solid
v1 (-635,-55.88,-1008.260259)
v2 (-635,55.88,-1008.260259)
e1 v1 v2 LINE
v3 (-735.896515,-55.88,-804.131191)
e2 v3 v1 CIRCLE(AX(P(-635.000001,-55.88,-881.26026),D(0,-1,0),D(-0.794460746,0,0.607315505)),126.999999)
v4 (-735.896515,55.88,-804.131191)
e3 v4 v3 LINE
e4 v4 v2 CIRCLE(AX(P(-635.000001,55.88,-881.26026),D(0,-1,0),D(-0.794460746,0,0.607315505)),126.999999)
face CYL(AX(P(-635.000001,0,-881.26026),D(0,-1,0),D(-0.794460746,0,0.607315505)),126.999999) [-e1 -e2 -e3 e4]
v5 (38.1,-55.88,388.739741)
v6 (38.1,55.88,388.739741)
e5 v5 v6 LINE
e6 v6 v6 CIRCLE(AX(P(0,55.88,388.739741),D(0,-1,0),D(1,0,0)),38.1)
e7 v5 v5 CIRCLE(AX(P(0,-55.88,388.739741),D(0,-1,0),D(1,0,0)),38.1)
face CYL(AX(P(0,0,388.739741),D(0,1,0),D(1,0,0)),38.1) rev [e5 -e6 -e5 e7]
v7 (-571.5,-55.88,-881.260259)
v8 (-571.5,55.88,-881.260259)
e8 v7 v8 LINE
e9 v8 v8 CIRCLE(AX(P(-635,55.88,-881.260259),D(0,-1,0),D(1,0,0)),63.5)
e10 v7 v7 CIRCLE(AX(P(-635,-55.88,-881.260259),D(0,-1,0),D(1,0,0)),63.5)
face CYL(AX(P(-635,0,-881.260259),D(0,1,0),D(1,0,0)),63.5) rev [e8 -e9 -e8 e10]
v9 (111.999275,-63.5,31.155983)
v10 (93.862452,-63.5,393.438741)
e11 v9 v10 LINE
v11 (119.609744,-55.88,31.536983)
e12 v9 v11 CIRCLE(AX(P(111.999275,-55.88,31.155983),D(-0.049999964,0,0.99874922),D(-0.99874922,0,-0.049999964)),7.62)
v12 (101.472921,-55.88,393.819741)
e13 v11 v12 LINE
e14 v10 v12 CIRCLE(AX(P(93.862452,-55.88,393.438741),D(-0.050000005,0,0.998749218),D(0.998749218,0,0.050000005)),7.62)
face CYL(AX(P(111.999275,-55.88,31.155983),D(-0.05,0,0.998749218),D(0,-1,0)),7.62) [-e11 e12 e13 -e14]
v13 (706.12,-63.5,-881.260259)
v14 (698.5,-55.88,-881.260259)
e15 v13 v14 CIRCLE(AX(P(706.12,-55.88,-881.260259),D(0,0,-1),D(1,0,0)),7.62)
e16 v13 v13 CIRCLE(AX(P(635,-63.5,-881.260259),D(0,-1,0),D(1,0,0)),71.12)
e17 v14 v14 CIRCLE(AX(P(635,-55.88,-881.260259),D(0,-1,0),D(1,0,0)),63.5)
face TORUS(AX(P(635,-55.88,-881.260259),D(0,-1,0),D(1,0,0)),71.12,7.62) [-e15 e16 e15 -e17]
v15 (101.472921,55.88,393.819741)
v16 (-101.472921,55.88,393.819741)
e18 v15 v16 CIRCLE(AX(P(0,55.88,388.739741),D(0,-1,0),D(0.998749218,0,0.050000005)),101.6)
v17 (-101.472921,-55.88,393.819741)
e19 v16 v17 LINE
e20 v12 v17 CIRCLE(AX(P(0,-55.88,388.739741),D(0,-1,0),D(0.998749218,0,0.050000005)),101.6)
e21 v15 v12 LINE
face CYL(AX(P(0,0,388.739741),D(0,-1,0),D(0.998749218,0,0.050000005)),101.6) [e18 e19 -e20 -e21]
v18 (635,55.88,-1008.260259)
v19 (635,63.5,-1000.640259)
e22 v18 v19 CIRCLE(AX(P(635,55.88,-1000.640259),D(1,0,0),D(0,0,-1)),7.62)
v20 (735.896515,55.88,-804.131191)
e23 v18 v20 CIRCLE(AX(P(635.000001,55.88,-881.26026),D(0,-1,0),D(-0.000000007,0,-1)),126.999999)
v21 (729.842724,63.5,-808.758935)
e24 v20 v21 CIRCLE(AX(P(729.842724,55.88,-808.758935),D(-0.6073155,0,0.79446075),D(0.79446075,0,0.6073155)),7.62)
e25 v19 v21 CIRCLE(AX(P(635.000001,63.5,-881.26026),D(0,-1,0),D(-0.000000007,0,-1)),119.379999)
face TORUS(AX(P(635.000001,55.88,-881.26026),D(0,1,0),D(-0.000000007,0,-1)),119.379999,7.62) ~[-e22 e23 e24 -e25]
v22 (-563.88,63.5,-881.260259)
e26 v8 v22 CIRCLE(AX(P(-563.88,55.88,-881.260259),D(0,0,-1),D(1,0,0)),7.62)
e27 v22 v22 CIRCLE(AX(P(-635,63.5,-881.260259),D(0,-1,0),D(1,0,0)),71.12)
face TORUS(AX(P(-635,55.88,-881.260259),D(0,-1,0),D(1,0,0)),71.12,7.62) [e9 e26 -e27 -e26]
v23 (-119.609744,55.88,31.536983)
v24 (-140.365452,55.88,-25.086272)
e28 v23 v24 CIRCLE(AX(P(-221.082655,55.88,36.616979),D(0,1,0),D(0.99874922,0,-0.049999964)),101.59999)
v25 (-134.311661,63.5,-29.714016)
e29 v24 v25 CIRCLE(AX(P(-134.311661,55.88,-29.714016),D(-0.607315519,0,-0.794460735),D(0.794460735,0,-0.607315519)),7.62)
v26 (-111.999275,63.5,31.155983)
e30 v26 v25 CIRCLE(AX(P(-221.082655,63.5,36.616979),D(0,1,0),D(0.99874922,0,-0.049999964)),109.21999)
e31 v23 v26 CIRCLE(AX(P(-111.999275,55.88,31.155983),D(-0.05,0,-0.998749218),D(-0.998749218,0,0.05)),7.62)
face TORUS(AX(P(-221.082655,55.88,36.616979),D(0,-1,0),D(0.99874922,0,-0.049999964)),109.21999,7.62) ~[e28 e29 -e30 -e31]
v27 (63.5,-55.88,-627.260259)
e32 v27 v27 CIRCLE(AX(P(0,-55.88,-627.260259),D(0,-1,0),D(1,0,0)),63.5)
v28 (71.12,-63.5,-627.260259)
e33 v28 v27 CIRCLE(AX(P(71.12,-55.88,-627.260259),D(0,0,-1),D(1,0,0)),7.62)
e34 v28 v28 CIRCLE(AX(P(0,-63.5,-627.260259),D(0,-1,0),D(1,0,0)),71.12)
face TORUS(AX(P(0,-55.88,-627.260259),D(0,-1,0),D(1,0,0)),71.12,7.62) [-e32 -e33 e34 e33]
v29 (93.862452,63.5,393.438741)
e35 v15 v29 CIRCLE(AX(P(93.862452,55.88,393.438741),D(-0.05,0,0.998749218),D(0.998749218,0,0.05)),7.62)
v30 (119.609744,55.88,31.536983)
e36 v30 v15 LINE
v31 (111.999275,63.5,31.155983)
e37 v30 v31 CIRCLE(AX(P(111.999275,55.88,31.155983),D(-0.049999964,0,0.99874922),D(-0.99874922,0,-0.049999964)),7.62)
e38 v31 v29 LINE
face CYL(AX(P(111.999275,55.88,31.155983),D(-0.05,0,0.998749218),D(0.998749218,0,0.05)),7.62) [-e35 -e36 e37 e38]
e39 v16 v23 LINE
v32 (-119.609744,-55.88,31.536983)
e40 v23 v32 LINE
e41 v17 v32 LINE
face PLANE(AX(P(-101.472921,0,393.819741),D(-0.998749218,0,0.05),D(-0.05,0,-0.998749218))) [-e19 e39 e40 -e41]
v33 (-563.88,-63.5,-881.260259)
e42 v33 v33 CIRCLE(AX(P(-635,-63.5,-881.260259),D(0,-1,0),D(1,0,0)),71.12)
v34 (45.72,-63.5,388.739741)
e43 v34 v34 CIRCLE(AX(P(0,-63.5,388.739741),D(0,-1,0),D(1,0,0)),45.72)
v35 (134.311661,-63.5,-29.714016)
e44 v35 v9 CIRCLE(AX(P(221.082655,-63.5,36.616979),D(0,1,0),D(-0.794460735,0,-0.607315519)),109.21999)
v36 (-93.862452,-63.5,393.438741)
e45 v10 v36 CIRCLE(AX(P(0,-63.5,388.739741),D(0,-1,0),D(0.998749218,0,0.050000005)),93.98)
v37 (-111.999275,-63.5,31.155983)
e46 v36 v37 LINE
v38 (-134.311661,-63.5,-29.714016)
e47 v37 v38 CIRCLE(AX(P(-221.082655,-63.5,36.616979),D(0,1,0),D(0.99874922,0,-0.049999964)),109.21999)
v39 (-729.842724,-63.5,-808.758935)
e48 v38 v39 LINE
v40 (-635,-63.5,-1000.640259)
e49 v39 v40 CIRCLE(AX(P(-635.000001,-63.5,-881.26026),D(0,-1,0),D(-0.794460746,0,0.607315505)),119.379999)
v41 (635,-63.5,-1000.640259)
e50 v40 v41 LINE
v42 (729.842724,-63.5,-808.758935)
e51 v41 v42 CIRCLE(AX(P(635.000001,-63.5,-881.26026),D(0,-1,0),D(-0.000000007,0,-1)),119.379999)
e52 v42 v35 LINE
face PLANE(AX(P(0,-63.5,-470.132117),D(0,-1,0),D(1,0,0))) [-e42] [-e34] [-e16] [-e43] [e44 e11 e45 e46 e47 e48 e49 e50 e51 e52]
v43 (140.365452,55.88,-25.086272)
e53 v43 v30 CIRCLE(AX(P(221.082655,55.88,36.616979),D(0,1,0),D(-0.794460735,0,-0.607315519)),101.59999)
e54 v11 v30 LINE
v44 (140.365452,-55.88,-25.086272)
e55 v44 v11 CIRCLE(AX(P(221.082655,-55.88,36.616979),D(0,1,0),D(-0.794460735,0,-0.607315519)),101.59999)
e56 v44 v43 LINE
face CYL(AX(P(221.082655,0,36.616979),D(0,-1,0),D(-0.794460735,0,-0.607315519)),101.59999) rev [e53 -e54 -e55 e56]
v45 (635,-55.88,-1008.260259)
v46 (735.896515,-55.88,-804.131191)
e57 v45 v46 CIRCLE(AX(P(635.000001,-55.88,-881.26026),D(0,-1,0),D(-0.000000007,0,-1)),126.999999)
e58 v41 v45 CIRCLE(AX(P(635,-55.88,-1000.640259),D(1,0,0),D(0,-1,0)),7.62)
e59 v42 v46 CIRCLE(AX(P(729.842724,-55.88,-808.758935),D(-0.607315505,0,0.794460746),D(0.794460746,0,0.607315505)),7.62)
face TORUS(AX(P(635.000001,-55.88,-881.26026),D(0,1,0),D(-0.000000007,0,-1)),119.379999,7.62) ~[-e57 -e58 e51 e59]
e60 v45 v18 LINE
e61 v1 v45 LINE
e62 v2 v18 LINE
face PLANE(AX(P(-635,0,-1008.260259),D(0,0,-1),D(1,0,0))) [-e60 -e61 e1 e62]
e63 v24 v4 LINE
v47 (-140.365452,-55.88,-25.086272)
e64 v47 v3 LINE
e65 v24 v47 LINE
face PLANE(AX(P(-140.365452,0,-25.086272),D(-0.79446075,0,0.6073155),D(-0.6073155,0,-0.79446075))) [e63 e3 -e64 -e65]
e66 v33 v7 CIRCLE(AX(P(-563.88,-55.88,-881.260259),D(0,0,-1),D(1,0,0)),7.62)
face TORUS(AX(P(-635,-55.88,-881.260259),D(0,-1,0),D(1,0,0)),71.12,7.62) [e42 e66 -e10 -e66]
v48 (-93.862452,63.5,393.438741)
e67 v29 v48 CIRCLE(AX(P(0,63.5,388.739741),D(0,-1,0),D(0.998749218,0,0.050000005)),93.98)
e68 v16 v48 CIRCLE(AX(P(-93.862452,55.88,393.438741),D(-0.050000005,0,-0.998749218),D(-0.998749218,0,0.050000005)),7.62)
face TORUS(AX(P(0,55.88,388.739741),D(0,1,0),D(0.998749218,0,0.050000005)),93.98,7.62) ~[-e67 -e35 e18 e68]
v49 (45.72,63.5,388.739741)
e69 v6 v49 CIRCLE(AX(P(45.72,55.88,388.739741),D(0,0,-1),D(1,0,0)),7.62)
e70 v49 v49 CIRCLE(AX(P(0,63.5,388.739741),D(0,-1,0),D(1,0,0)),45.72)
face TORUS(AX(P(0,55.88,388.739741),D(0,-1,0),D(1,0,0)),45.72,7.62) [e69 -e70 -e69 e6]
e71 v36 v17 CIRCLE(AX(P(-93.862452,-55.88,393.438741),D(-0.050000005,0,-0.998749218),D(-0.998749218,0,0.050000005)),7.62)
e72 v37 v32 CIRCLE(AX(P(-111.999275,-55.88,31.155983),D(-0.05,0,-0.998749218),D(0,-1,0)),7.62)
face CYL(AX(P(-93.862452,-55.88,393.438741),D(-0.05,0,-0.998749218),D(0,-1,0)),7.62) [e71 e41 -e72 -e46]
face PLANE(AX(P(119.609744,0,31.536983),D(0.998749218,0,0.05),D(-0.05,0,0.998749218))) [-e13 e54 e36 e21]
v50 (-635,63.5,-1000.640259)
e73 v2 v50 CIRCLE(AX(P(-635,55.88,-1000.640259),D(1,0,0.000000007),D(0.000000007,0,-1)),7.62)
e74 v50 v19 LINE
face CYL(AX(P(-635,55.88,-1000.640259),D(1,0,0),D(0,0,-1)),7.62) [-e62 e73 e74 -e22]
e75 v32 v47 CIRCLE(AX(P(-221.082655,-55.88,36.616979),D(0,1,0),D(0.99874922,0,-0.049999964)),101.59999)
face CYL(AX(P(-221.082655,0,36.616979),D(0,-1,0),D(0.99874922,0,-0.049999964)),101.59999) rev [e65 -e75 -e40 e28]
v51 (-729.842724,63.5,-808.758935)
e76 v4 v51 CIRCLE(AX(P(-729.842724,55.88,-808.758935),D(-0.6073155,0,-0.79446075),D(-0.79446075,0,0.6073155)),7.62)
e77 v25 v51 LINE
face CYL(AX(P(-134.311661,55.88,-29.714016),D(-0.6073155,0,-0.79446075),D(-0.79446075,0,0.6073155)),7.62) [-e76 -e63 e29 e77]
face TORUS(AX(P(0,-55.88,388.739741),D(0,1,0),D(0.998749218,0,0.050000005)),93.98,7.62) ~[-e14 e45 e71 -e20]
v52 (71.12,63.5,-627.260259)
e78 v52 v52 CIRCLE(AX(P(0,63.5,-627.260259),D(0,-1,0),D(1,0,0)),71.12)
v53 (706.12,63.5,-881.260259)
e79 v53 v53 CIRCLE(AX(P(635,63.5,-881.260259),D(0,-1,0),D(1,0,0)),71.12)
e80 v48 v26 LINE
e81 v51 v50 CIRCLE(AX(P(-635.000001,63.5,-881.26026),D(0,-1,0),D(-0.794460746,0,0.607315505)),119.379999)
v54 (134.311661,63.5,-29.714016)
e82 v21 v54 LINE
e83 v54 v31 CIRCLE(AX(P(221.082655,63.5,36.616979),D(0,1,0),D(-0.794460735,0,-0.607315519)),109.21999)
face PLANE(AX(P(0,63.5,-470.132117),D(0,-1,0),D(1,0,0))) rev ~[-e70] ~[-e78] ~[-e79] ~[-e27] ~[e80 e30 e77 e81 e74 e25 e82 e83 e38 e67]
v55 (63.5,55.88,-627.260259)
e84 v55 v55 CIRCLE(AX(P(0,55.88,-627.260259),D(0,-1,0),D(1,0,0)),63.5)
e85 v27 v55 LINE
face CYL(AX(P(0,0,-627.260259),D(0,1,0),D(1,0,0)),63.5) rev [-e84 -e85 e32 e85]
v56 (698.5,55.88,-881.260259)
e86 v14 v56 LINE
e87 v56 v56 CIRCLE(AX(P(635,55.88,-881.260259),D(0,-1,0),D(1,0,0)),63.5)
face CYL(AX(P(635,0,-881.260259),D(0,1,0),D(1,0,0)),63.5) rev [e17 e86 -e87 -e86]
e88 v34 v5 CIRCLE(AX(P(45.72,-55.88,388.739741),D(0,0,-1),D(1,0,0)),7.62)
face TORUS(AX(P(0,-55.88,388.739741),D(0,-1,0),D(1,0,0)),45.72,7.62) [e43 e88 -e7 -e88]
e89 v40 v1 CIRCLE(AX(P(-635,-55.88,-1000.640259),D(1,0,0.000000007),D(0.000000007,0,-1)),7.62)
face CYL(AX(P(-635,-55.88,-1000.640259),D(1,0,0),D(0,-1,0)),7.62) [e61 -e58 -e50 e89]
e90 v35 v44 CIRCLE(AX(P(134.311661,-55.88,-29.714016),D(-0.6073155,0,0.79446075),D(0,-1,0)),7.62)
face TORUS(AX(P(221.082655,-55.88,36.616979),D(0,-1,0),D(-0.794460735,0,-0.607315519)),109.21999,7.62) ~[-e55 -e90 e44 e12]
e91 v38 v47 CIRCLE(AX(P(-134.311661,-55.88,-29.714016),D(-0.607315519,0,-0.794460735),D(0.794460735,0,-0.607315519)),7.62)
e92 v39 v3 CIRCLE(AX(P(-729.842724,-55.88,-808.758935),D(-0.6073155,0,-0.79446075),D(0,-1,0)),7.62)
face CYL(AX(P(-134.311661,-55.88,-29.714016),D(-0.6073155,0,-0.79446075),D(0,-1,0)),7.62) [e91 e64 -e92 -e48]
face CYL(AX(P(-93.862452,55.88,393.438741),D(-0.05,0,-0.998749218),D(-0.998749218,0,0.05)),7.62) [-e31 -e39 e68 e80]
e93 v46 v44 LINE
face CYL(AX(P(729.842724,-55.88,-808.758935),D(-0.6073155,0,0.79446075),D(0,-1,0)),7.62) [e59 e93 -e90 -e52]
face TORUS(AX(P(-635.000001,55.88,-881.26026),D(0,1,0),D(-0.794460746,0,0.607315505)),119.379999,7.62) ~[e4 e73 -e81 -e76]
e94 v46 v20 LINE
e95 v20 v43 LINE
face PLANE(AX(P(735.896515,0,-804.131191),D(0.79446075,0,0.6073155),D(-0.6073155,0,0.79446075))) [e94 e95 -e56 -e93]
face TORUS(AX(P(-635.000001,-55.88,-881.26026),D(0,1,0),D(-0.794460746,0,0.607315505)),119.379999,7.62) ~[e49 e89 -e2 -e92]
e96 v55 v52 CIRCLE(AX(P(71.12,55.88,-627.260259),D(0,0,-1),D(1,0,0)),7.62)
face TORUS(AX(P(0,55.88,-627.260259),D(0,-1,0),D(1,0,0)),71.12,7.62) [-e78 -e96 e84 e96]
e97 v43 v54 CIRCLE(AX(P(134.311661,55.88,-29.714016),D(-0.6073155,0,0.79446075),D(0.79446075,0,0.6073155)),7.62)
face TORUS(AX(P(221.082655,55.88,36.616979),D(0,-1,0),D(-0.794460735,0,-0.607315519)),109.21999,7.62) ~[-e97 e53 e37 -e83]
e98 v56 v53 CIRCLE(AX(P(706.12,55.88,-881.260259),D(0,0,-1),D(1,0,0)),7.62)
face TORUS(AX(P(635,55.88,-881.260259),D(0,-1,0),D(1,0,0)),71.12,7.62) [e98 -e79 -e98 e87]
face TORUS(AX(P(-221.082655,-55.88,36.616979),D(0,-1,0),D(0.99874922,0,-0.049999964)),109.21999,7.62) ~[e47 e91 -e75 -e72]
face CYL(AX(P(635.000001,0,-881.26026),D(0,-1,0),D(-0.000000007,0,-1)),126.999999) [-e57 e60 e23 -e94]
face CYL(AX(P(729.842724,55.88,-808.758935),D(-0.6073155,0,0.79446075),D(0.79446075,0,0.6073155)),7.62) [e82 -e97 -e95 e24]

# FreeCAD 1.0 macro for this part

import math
import FreeCAD as App
import Part
import Sketcher
Q = App.Units.Quantity


def edges_at(feature, points):
    """Names of the edges that pass closest to the given points."""
    edges = feature.Shape.Edges
    near = lambda p: min(range(len(edges)), key=lambda i: edges[i].distToShape(Part.Vertex(*p))[0])
    return sorted({f"Edge{near(p) + 1}" for p in points})

doc = App.newDocument("Part")
body = doc.addObject("PartDesign::Body", "Body")

# Sketch on XZ plane
sketch1 = body.newObject("Sketcher::SketchObject", "Sketch")
sketch1.AttachmentSupport = (doc.getObject("XZ_Plane"), [""])
sketch1.MapMode = "FlatFace"
sketch1.addGeometry(Part.LineSegment(App.Vector(119.609744, 31.536983, 0), App.Vector(101.472921, 393.819741, 0)), False)
sketch1.addGeometry(Part.ArcOfCircle(Part.Circle(App.Vector(0, 388.739741, 0), App.Vector(0, 0, 1), 101.6), math.radians(2.865984), math.radians(177.134016)), False)
sketch1.addGeometry(Part.LineSegment(App.Vector(-101.472921, 393.819741, 0), App.Vector(-119.609744, 31.536983, 0)), False)
sketch1.addGeometry(Part.ArcOfCircle(Part.Circle(App.Vector(-221.082655, 36.616979, 0), App.Vector(0, 0, 1), 101.59999), math.radians(-37.39565), math.radians(-2.865982)), False)
sketch1.addGeometry(Part.LineSegment(App.Vector(-140.365452, -25.086272, 0), App.Vector(-735.896515, -804.131191, 0)), False)
sketch1.addGeometry(Part.ArcOfCircle(Part.Circle(App.Vector(-635.000001, -881.26026, 0), App.Vector(0, 0, 1), 126.999999), math.radians(142.604351), math.radians(270)), False)
sketch1.addGeometry(Part.LineSegment(App.Vector(-635, -1008.260259, 0), App.Vector(635, -1008.260259, 0)), False)
sketch1.addGeometry(Part.ArcOfCircle(Part.Circle(App.Vector(635.000001, -881.26026, 0), App.Vector(0, 0, 1), 126.999999), math.radians(-90), math.radians(37.395649)), False)
sketch1.addGeometry(Part.LineSegment(App.Vector(735.896515, -804.131191, 0), App.Vector(140.365452, -25.086272, 0)), False)
sketch1.addGeometry(Part.ArcOfCircle(Part.Circle(App.Vector(221.082655, 36.616979, 0), App.Vector(0, 0, 1), 101.59999), math.radians(-177.134018), math.radians(-142.60435)), False)
sketch1.addGeometry(Part.Circle(App.Vector(-635, -881.260259, 0), App.Vector(0, 0, 1), 63.5), False)
sketch1.addGeometry(Part.Circle(App.Vector(0, -627.260259, 0), App.Vector(0, 0, 1), 63.5), False)
sketch1.addGeometry(Part.Circle(App.Vector(635, -881.260259, 0), App.Vector(0, 0, 1), 63.5), False)
sketch1.addGeometry(Part.Circle(App.Vector(0, 388.739741, 0), App.Vector(0, 0, 1), 38.1), False)
sketch1.addConstraint(Sketcher.Constraint("Coincident", 0, 2, 1, 1))
sketch1.addConstraint(Sketcher.Constraint("Coincident", 1, 2, 2, 1))
sketch1.addConstraint(Sketcher.Constraint("Coincident", 2, 2, 3, 2))
sketch1.addConstraint(Sketcher.Constraint("Coincident", 3, 1, 4, 1))
sketch1.addConstraint(Sketcher.Constraint("Coincident", 4, 2, 5, 1))
sketch1.addConstraint(Sketcher.Constraint("Coincident", 5, 2, 6, 1))
sketch1.addConstraint(Sketcher.Constraint("Coincident", 6, 2, 7, 1))
sketch1.addConstraint(Sketcher.Constraint("Coincident", 7, 2, 8, 1))
sketch1.addConstraint(Sketcher.Constraint("Coincident", 8, 2, 9, 2))
sketch1.addConstraint(Sketcher.Constraint("Coincident", 9, 1, 0, 1))
sketch1.addConstraint(Sketcher.Constraint("Horizontal", 6))
sketch1.addConstraint(Sketcher.Constraint("Coincident", 10, 3, 5, 3))
sketch1.addConstraint(Sketcher.Constraint("Coincident", 12, 3, 7, 3))
sketch1.addConstraint(Sketcher.Constraint("Coincident", 13, 3, 1, 3))
sketch1.addConstraint(Sketcher.Constraint("PointOnObject", 1, 3, -2))
sketch1.addConstraint(Sketcher.Constraint("PointOnObject", 11, 3, -2))
sketch1.addConstraint(Sketcher.Constraint("Diameter", 10, Q("5 in")))
sketch1.addConstraint(Sketcher.Constraint("Diameter", 11, Q("5 in")))
sketch1.addConstraint(Sketcher.Constraint("Diameter", 12, Q("5 in")))
sketch1.addConstraint(Sketcher.Constraint("Diameter", 13, Q("3 in")))
sketch1.addConstraint(Sketcher.Constraint("Radius", 1, Q("4 in")))
sketch1.addConstraint(Sketcher.Constraint("Radius", 5, Q("5 in")))
sketch1.addConstraint(Sketcher.Constraint("Radius", 7, Q("5 in")))
sketch1.addConstraint(Sketcher.Constraint("DistanceX", 6, 1, 6, 2, Q("50 in")))
sketch1.addConstraint(Sketcher.Constraint("DistanceX", 5, 3, -1, 1, Q("25 in")))
sketch1.addConstraint(Sketcher.Constraint("DistanceX", -1, 1, 7, 3, Q("25 in")))
sketch1.addConstraint(Sketcher.Constraint("DistanceX", 5, 2, -1, 1, Q("25 in")))
sketch1.addConstraint(Sketcher.Constraint("DistanceY", 5, 3, 1, 3, Q("50 in")))
sketch1.addConstraint(Sketcher.Constraint("DistanceY", 10, 3, 11, 3, Q("10 in")))
sketch1.addConstraint(Sketcher.Constraint("DistanceY", 13, 3, 0, 2, Q("0.2 in")))
sketch1.addConstraint(Sketcher.Constraint("DistanceY", 13, 3, 1, 2, Q("0.2 in")))
sketch1.addConstraint(Sketcher.Constraint("DistanceY", 2, 2, 3, 3, Q("0.1999998 in")))
sketch1.addConstraint(Sketcher.Constraint("DistanceY", 2, 2, 9, 3, Q("0.1999998 in")))
sketch1.addConstraint(Sketcher.Constraint("DistanceY", 9, 1, 9, 3, Q("0.1999998 in")))
sketch1.addConstraint(Sketcher.Constraint("Radius", 3, 101.59999))
sketch1.addConstraint(Sketcher.Constraint("Radius", 9, 101.59999))
sketch1.addConstraint(Sketcher.Constraint("DistanceX", 2, 2, 9, 3, 340.692399))
sketch1.addConstraint(Sketcher.Constraint("DistanceY", -1, 1, 1, 3, 388.739741))
sketch1.addConstraint(Sketcher.Constraint("DistanceY", -1, 1, 3, 3, 36.616979))
sketch1.addConstraint(Sketcher.Constraint("DistanceX", 3, 1, -1, 1, 140.365452))
sketch1.addConstraint(Sketcher.Constraint("DistanceY", 4, 2, -1, 1, 804.131191))
sketch1.addConstraint(Sketcher.Constraint("DistanceY", 7, 2, -1, 1, 804.131191))
sketch1.addConstraint(Sketcher.Constraint("DistanceX", -1, 1, 8, 2, 140.365452))
sketch1.addConstraint(Sketcher.Constraint("DistanceY", 3, 1, 3, 3, 61.703251))
pad1 = body.newObject("PartDesign::Pad", "Pad")
pad1.Profile = sketch1
pad1.Length = Q("5 in")
pad1.Midplane = True
doc.recompute()

fillet = body.newObject("PartDesign::Fillet", "Fillet")
fillet.Base = (pad1, edges_at(pad1, [
    (0, -63.5, 490.34),
    (110.541, -63.5, 212.678),
    (-110.541, -63.5, 212.678),
    (438.131, 63.5, -414.609),
    (125.689, 63.5, 1.65),
    (110.541, 63.5, 212.678),
    (0, -63.5, -1008.26),
    (-698.5, -63.5, -881.26),
    (-698.5, 63.5, -881.26),
    (-63.5, 63.5, -627.26),
    (-63.5, -63.5, -627.26),
    (571.5, -63.5, -881.26),
    (571.5, 63.5, -881.26),
    (-38.1, -63.5, 388.74),
    (-38.1, 63.5, 388.74),
]))
fillet.Radius = Q("0.3 in")

doc.recompute()
